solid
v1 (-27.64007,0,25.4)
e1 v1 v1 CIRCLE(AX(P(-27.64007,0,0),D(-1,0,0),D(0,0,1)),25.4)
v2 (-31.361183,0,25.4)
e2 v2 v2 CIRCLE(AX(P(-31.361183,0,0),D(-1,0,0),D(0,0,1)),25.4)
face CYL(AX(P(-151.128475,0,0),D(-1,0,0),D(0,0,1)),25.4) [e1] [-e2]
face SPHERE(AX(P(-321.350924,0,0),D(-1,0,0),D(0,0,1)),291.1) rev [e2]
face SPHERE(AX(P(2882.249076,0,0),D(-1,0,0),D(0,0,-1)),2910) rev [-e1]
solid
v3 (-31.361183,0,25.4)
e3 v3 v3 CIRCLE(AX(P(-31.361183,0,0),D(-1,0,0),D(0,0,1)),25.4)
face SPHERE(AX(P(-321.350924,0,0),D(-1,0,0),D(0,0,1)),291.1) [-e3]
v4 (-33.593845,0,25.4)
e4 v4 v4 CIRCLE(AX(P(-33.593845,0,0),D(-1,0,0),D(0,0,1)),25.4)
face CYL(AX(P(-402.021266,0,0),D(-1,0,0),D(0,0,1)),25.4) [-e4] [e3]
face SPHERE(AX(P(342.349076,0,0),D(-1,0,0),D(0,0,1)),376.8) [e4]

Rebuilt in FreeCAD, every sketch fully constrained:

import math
import FreeCAD as App
import Part
import Sketcher
from FreeCAD import Vector

doc = App.newDocument("Part")
body = doc.addObject("PartDesign::Body", "Body")

# Sketch on XZ plane
sketch1 = body.newObject("Sketcher::SketchObject", "Sketch")
sketch1.AttachmentSupport = (doc.getObject("XZ_Plane"), [""])
sketch1.MapMode = "FlatFace"
sketch1.addGeometry([
    Part.ArcOfCircle(Part.Circle(Vector(342.3, 0, 0), Vector(0, 0, 1), 376.8), math.radians(180), math.radians(183.87)),
    Part.LineSegment(Vector(-34.5, 0, 0), Vector(-30.3, 0, 0)),
    Part.ArcOfCircle(Part.Circle(Vector(-321.4, 0, 0), Vector(0, 0, 1), 291.1), math.radians(-5.01), math.radians(0)),
    Part.LineSegment(Vector(-31.4, -25.4, 0), Vector(-33.6, -25.4, 0)),
], False)
sketch1.addConstraint([
    Sketcher.Constraint("Coincident", 0, 1, 1, 1),
    Sketcher.Constraint("Coincident", 1, 2, 2, 2),
    Sketcher.Constraint("Coincident", 2, 1, 3, 1),
    Sketcher.Constraint("Coincident", 3, 2, 0, 2),
    Sketcher.Constraint("Horizontal", 1),
    Sketcher.Constraint("Horizontal", 3),
    Sketcher.Constraint("PointOnObject", 0, 3, -1),
    Sketcher.Constraint("PointOnObject", 2, 3, -1),
    Sketcher.Constraint("PointOnObject", 1, 2, -1),
    Sketcher.Constraint("Radius", 0, 376.799999),
    Sketcher.Constraint("Radius", 2, 291.100001),
    Sketcher.Constraint("DistanceX", 1, 1, 1, 2, 4.2),
    Sketcher.Constraint("DistanceY", 2, 1, -1, 1, 25.4),
    Sketcher.Constraint("DistanceX", -1, 1, 0, 3, 342.349075),
])
revolution = body.newObject("PartDesign::Revolution", "Revolution")
revolution.Profile = sketch1
revolution.ReferenceAxis = (sketch1, ["H_Axis"])
revolution.Angle = 360
body2 = doc.addObject("PartDesign::Body", "Body001")

# Sketch on XZ plane
sketch2 = body2.newObject("Sketcher::SketchObject", "Sketch001")
sketch2.AttachmentSupport = (doc.getObject("XZ_Plane001"), [""])
sketch2.MapMode = "FlatFace"
sketch2.addGeometry([
    Part.LineSegment(Vector(-27.6, -25.4, 0), Vector(-31.4, -25.4, 0)),
    Part.ArcOfCircle(Part.Circle(Vector(-321.4, 0, 0), Vector(0, 0, 1), 291.1), math.radians(-5.01), math.radians(0)),
    Part.LineSegment(Vector(-30.3, 0, 0), Vector(-27.8, 0, 0)),
    Part.ArcOfCircle(Part.Circle(Vector(2882.2, 0, 0), Vector(0, 0, 1), 2910), math.radians(180), math.radians(180.5)),
], False)
sketch2.addConstraint([
    Sketcher.Constraint("Coincident", 0, 2, 1, 1),
    Sketcher.Constraint("Coincident", 1, 2, 2, 1),
    Sketcher.Constraint("Coincident", 2, 2, 3, 1),
    Sketcher.Constraint("Coincident", 3, 2, 0, 1),
    Sketcher.Constraint("Horizontal", 0),
    Sketcher.Constraint("Horizontal", 2),
    Sketcher.Constraint("PointOnObject", 1, 3, -1),
    Sketcher.Constraint("PointOnObject", 3, 3, -1),
    Sketcher.Constraint("PointOnObject", 1, 2, -1),
    Sketcher.Constraint("Radius", 1, 291.100001),
    Sketcher.Constraint("DistanceX", 2, 1, 2, 2, 2.5),
    Sketcher.Constraint("DistanceY", 0, 2, -1, 1, 25.4),
    Sketcher.Constraint("Radius", 3, 2909.999981),
    Sketcher.Constraint("DistanceX", 3, 2, -1, 1, 27.64007),
])
revolution2 = body2.newObject("PartDesign::Revolution", "Revolution001")
revolution2.Profile = sketch2
revolution2.ReferenceAxis = (sketch2, ["H_Axis"])
revolution2.Angle = 360

doc.recompute()
